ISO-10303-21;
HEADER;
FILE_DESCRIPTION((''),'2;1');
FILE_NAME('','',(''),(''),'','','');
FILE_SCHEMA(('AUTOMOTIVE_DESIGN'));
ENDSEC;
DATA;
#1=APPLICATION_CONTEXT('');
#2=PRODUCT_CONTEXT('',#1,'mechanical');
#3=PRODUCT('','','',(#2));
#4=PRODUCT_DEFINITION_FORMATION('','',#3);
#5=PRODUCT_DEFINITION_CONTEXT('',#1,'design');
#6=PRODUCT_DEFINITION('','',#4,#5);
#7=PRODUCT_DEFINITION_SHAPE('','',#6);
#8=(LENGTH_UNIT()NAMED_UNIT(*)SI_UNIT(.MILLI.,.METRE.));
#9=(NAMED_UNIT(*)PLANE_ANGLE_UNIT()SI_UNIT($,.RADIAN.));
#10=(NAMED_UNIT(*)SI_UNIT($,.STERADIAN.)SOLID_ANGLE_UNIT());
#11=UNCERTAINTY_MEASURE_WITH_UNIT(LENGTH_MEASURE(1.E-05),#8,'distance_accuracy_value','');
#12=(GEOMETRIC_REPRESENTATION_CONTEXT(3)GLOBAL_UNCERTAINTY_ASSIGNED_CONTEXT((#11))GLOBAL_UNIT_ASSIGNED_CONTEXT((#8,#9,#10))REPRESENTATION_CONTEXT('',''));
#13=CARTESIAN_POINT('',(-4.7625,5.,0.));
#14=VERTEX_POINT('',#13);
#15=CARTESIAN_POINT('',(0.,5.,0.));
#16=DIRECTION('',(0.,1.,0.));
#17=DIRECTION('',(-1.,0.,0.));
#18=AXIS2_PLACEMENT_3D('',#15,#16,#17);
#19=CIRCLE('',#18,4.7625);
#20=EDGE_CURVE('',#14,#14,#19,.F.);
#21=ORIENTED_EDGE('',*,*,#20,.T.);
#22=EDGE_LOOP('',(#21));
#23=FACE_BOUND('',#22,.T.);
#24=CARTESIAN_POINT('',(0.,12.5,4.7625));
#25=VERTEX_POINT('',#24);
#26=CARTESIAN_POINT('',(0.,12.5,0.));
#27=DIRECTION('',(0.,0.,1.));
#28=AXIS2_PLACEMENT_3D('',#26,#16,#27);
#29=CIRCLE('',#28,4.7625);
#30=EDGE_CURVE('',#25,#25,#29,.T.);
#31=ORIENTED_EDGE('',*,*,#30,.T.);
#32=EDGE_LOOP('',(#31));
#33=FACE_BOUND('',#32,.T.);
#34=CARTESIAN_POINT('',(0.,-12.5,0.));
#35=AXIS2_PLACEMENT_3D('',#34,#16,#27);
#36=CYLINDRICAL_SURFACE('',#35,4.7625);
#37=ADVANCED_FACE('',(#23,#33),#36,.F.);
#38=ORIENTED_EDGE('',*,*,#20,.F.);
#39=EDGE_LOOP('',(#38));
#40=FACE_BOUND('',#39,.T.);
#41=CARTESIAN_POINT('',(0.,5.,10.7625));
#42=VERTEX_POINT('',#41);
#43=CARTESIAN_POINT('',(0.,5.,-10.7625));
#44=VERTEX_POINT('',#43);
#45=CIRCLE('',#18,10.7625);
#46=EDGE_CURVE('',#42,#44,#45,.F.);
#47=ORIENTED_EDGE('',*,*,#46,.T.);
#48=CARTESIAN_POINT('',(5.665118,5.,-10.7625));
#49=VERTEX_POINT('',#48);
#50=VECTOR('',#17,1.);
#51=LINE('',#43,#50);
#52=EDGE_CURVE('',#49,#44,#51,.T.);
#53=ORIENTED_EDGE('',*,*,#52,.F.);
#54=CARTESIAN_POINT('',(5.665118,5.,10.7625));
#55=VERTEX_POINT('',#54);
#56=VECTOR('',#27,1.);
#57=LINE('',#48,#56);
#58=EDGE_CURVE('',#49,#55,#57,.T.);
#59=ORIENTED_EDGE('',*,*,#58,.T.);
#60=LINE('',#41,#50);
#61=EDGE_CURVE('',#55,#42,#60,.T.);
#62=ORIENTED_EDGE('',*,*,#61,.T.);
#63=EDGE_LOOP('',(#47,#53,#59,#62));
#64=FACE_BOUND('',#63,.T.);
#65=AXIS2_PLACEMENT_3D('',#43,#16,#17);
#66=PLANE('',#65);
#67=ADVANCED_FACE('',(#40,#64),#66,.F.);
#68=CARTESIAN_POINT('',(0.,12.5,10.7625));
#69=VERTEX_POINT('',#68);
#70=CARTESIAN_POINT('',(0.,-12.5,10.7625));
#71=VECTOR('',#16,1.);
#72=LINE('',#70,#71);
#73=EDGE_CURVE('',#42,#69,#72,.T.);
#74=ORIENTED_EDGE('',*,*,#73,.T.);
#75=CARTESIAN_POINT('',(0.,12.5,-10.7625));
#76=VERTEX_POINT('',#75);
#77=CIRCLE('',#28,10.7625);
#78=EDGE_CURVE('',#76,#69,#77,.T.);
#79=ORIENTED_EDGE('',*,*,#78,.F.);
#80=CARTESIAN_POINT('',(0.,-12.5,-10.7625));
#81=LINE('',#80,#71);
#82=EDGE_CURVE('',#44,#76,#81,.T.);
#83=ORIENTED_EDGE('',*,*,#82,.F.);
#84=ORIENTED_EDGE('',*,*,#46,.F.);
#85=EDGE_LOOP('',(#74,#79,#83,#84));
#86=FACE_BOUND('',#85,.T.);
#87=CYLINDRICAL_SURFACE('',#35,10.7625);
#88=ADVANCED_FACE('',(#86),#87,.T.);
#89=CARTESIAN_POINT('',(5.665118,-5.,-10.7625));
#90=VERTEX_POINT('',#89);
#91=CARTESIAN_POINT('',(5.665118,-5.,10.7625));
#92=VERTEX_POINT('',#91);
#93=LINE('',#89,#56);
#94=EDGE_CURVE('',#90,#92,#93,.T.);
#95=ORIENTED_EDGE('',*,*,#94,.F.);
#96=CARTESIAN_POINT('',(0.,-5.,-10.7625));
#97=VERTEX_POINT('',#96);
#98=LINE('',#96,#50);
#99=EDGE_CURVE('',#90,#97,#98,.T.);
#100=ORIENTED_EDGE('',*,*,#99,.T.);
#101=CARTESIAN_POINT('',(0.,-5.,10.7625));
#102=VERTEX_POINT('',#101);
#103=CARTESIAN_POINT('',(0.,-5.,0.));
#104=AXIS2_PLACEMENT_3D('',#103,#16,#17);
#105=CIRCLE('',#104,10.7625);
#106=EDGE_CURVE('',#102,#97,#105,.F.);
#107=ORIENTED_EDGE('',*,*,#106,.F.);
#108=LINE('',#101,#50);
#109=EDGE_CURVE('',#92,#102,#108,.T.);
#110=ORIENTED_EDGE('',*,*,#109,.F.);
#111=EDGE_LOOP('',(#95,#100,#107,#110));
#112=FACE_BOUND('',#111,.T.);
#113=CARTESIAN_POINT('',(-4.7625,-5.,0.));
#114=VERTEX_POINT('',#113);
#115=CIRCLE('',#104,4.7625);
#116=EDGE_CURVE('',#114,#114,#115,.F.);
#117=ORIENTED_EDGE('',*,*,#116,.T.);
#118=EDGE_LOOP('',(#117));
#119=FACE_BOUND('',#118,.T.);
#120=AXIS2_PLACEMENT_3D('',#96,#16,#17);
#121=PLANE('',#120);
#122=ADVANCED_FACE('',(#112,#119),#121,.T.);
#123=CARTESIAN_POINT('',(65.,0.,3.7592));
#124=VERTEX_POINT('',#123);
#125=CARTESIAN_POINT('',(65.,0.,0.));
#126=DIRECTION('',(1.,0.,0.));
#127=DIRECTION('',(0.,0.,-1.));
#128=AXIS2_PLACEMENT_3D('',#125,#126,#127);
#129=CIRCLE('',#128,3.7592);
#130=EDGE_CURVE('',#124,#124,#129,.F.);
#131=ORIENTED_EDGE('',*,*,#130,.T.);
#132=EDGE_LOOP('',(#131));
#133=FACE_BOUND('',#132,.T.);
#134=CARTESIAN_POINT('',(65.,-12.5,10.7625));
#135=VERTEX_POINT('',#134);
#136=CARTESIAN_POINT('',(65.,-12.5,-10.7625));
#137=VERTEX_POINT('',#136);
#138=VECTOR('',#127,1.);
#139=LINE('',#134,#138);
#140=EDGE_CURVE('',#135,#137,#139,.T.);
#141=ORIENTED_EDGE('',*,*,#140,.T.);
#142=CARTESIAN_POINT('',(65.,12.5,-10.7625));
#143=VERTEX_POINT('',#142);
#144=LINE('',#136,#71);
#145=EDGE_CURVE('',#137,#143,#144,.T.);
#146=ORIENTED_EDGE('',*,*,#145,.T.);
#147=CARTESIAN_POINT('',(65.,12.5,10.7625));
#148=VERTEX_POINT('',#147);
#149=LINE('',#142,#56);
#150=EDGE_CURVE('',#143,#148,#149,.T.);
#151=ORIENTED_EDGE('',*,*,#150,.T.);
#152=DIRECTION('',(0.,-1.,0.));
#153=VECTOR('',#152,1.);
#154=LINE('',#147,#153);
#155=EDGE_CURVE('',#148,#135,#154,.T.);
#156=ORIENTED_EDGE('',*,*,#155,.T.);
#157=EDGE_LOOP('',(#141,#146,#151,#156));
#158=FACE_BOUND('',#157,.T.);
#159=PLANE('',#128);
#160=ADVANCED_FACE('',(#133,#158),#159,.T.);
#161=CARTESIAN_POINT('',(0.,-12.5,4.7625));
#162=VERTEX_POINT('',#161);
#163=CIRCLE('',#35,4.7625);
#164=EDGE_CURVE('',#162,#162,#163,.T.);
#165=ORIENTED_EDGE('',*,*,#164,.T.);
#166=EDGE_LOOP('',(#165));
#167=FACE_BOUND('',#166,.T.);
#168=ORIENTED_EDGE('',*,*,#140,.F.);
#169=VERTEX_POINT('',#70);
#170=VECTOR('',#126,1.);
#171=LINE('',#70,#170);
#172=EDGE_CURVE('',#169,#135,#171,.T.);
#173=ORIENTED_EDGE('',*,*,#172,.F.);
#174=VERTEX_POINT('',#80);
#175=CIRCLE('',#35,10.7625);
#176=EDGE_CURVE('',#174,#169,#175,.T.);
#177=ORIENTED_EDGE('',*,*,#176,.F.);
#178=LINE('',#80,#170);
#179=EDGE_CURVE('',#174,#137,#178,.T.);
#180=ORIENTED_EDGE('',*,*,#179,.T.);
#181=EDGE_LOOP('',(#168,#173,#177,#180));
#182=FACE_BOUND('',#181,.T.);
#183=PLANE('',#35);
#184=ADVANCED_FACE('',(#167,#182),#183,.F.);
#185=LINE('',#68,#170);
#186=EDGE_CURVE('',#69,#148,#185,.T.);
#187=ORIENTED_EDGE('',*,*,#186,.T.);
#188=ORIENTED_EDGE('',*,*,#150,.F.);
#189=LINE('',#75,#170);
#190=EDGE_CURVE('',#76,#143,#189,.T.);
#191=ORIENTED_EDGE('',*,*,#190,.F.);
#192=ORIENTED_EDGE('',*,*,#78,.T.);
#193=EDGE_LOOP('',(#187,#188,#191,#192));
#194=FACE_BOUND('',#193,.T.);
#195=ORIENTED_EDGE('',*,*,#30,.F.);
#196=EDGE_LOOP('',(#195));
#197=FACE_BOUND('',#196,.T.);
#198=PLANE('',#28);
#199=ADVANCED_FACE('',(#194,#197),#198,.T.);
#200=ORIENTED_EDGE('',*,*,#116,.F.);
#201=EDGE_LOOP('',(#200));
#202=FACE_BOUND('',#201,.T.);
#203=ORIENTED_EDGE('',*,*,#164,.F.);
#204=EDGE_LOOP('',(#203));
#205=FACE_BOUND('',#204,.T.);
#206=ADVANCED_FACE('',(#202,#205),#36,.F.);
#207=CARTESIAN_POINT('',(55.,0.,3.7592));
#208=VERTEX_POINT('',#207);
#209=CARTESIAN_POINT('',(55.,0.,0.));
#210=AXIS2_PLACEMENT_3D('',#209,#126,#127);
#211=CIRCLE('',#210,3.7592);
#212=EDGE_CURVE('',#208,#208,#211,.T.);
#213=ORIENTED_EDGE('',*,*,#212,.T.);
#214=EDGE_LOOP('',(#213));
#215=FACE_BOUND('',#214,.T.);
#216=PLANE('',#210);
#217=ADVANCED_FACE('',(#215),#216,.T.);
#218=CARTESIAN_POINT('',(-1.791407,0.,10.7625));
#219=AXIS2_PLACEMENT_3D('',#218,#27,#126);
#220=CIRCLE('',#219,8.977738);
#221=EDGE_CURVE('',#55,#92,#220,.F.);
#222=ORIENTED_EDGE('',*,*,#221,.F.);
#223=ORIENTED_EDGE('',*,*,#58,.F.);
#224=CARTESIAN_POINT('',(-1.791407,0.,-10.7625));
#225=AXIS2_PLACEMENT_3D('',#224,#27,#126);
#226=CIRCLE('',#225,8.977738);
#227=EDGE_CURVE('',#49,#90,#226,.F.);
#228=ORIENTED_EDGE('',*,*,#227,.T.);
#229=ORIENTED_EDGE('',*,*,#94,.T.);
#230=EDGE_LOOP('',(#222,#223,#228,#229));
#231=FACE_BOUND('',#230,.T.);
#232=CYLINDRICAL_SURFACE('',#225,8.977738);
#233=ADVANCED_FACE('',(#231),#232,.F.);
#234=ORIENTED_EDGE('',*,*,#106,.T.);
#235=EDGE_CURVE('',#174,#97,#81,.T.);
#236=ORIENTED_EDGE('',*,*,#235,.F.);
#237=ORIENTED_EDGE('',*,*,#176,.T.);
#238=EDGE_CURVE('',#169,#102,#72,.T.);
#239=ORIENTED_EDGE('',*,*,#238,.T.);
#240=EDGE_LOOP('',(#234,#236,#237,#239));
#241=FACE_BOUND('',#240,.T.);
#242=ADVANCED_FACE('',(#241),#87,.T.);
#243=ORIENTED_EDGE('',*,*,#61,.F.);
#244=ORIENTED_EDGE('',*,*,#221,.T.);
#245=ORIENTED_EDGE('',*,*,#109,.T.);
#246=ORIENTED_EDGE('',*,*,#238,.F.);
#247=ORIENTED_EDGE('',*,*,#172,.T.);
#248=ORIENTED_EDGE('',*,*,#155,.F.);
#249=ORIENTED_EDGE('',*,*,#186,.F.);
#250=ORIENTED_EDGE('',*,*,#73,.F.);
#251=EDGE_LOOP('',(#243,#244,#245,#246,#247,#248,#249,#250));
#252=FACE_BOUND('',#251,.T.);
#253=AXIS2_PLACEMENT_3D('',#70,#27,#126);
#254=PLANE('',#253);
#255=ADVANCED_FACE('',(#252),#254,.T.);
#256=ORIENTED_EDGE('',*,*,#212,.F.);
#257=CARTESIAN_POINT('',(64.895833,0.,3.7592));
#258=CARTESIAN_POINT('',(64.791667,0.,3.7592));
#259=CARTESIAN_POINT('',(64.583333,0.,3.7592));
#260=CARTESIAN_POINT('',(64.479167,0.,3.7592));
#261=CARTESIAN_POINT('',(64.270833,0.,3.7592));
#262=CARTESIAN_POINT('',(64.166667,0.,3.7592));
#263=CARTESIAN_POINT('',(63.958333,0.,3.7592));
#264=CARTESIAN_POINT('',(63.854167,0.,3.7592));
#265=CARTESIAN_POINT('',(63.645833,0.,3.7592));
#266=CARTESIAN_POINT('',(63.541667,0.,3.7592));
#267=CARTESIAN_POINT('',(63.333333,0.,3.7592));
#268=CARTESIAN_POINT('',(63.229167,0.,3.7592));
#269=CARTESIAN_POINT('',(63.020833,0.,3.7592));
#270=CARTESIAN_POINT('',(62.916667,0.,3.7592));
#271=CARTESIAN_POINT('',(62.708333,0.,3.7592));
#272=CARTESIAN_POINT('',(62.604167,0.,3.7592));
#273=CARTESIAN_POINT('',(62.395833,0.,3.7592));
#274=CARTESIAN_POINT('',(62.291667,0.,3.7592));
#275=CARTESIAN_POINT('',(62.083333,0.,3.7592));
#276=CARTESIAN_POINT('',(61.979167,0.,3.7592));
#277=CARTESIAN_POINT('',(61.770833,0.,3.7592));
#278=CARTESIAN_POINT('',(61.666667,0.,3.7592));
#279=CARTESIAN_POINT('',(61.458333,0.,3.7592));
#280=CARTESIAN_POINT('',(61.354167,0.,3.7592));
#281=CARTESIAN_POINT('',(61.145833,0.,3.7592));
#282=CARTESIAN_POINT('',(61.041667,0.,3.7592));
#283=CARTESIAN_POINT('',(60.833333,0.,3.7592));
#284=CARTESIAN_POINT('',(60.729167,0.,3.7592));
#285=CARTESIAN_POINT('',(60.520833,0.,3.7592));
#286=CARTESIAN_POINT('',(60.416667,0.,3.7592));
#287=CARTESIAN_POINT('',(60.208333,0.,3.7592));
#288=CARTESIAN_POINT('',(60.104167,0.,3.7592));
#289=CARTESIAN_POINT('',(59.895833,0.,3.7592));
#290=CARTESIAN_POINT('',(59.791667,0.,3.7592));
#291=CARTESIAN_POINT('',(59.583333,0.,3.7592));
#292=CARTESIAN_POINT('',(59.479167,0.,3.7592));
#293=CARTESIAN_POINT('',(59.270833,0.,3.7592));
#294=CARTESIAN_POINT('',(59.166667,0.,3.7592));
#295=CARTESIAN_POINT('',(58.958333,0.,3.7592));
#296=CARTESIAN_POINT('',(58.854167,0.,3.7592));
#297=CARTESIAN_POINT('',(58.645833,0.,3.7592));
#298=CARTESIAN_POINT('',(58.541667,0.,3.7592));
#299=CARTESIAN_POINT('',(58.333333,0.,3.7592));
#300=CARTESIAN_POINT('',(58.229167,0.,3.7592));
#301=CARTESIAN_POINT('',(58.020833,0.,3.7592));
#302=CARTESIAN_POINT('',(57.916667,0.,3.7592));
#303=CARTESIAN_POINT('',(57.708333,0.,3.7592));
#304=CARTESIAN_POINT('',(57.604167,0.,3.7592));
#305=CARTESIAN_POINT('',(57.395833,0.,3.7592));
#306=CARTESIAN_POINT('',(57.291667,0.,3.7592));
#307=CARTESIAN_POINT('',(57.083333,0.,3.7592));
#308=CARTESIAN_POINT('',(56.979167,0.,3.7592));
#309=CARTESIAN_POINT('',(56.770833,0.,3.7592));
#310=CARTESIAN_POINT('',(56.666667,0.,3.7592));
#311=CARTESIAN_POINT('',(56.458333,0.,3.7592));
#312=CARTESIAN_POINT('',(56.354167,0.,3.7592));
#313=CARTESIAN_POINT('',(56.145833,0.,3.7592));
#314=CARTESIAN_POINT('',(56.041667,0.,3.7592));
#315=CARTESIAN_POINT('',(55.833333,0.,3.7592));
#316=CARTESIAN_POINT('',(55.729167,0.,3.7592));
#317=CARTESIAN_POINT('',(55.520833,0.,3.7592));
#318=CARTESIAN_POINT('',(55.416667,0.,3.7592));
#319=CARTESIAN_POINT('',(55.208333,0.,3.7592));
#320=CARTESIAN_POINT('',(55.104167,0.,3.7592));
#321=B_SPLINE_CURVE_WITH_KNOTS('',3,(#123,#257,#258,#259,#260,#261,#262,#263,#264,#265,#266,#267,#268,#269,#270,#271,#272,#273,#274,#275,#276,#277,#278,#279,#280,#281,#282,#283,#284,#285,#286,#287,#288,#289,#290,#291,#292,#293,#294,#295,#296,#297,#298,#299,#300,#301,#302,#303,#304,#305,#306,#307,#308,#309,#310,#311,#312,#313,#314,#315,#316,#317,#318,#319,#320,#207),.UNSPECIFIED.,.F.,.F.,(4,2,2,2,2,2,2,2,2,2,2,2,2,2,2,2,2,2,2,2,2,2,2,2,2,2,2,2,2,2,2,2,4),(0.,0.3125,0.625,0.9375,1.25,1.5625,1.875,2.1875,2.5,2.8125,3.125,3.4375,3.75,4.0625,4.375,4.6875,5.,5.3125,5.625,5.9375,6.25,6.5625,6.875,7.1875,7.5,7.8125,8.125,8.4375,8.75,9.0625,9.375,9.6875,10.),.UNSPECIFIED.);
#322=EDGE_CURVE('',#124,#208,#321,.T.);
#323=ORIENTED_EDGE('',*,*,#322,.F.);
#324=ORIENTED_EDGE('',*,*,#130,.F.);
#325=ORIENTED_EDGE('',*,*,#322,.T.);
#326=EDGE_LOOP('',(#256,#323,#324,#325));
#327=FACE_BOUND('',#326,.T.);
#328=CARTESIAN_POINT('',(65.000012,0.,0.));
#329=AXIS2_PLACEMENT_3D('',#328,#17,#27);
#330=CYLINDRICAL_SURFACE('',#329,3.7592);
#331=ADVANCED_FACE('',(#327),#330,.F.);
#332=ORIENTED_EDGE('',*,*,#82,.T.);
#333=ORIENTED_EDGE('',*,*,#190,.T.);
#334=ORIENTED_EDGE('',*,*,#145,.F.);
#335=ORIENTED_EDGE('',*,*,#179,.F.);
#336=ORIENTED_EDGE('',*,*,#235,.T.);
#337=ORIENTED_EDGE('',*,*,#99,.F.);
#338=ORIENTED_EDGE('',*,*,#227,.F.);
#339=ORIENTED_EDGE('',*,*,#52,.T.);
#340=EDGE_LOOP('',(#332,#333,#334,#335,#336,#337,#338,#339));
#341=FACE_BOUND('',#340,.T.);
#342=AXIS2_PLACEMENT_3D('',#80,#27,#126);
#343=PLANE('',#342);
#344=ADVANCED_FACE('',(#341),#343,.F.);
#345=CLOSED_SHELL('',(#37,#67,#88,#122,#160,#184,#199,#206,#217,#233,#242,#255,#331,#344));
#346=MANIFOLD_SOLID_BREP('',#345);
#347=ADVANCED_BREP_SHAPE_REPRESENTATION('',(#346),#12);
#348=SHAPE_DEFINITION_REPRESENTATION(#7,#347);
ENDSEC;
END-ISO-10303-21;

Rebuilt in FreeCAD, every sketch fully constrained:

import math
import FreeCAD as App
import Part
import Sketcher

V = App.Vector


def add_polygon(sketch, points):
    """Adds a closed chain of lines whose ends are joined by coincident constraints."""
    first, n = sketch.GeometryCount, len(points)
    for a, b in zip(points, points[1:] + points[:1]):
        sketch.addGeometry(Part.LineSegment(App.Vector(*a, 0), App.Vector(*b, 0)), False)
    for i in range(n):
        sketch.addConstraint(Sketcher.Constraint("Coincident", first + i, 2, first + (i + 1) % n, 1))

doc = App.newDocument("Part")
body = doc.addObject("PartDesign::Body", "Body")

# Sketch on XZ plane
sketch1 = body.newObject("Sketcher::SketchObject", "Sketch")
sketch1.AttachmentSupport = (doc.getObject("XZ_Plane"), [""])
sketch1.MapMode = "FlatFace"
add_polygon(sketch1, [(-15, -15), (-15, 15), (15, 15), (15, -15)])  # lines 0-3
sketch1.addConstraint([
    Sketcher.Constraint("Vertical", 0),
    Sketcher.Constraint("Horizontal", 1),
    Sketcher.Constraint("Vertical", 2),
    Sketcher.Constraint("Horizontal", 3),
    Sketcher.Constraint("Symmetric", 0, 2, 2, 2, -1, 1),
    Sketcher.Constraint("Equal", 3, 0),
    Sketcher.Constraint("DistanceX", 1, 1, 1, 2, 30.0),
])
pad1 = body.newObject("PartDesign::Pad", "Pad")
pad1.Profile = sketch1
pad1.Length = 25
pad1.Midplane = True

# Sketch on XZ plane
sketch2 = body.newObject("Sketcher::SketchObject", "Sketch001")
sketch2.AttachmentSupport = (doc.getObject("XZ_Plane"), [""])
sketch2.MapMode = "FlatFace"
sketch2.addGeometry([
    Part.Circle(V(0, 0, 0), V(0, 0, 1), 4.8),  # 0
    Part.ArcOfCircle(Part.Circle(V(0, 0, 0), V(0, 0, 1), 10.8), math.radians(90), math.radians(270)),  # 1
    Part.LineSegment(V(0, -10.8, 0), V(15, -10.8, 0)),  # 2
    Part.LineSegment(V(15, -10.8, 0), V(15, -15, 0)),  # 3
    Part.LineSegment(V(15, -15, 0), V(-15, -15, 0)),  # 4
    Part.LineSegment(V(-15, -15, 0), V(-15, 15, 0)),  # 5
    Part.LineSegment(V(-15, 15, 0), V(15, 15, 0)),  # 6
    Part.LineSegment(V(15, 15, 0), V(15, 10.8, 0)),  # 7
    Part.LineSegment(V(15, 10.8, 0), V(0, 10.8, 0)),  # 8
], False)
sketch2.addConstraint([
    Sketcher.Constraint("Tangent", 1, 2, 2, 1),
    Sketcher.Constraint("Coincident", 2, 2, 3, 1),
    Sketcher.Constraint("Coincident", 3, 2, 4, 1),
    Sketcher.Constraint("Coincident", 4, 2, 5, 1),
    Sketcher.Constraint("Coincident", 5, 2, 6, 1),
    Sketcher.Constraint("Coincident", 6, 2, 7, 1),
    Sketcher.Constraint("Coincident", 7, 2, 8, 1),
    Sketcher.Constraint("Tangent", 8, 2, 1, 1),
    Sketcher.Constraint("Horizontal", 2),
    Sketcher.Constraint("Vertical", 3),
    Sketcher.Constraint("Horizontal", 4),
    Sketcher.Constraint("Vertical", 5),
    Sketcher.Constraint("Horizontal", 6),
    Sketcher.Constraint("Vertical", 7),
    Sketcher.Constraint("Horizontal", 8),
    Sketcher.Constraint("Coincident", 0, 3, -1, 1),
    Sketcher.Constraint("Coincident", 1, 3, -1, 1),
    Sketcher.Constraint("Symmetric", 3, 2, 5, 2, -1, 1),
    Sketcher.Constraint("Vertical", 3, 2, 6, 2),
    Sketcher.Constraint("Equal", 6, 5),
    Sketcher.Constraint("DistanceX", 2, 1, 2, 2, 15.0),
    Sketcher.Constraint("Diameter", 0, 9.525),
    Sketcher.Constraint("Radius", 1, 10.7625),
])
pocket1 = body.newObject("PartDesign::Pocket", "Pocket")
pocket1.Profile = sketch2
pocket1.Type = "ThroughAll"
pocket1.Midplane = True

# Sketch on XY plane
sketch3 = body.newObject("Sketcher::SketchObject", "Sketch002")
sketch3.AttachmentSupport = (doc.getObject("XY_Plane"), [""])
sketch3.MapMode = "FlatFace"
sketch3.AttachmentOffset = App.Placement(V(0, 0, 10.7625), App.Rotation())
sketch3.addGeometry([
    Part.ArcOfCircle(Part.Circle(V(-2, 0, 0), V(0, 0, 1), 9), math.radians(-34), math.radians(34)),
    Part.LineSegment(V(6, 5, 0), V(-11, 5, 0)),
    Part.LineSegment(V(-11, 5, 0), V(-11, -5, 0)),
    Part.LineSegment(V(-11, -5, 0), V(6, -5, 0)),
], False)
sketch3.addConstraint([
    Sketcher.Constraint("Coincident", 0, 2, 1, 1),
    Sketcher.Constraint("Coincident", 1, 2, 2, 1),
    Sketcher.Constraint("Coincident", 2, 2, 3, 1),
    Sketcher.Constraint("Coincident", 3, 2, 0, 1),
    Sketcher.Constraint("Horizontal", 1),
    Sketcher.Constraint("Vertical", 2),
    Sketcher.Constraint("Horizontal", 3),
    Sketcher.Constraint("Symmetric", 0, 2, 3, 2, -1),
    Sketcher.Constraint("DistanceY", 2, 2, 2, 1, 10.0),
    Sketcher.Constraint("Radius", 0, 8.977738),
    Sketcher.Constraint("DistanceX", 1, 2, 1, 1, 16.427618),
    Sketcher.Constraint("DistanceX", 1, 2, -1, 1, 10.7625),
])
pocket2 = body.newObject("PartDesign::Pocket", "Pocket001")
pocket2.Profile = sketch3
pocket2.Type = "ThroughAll"
pocket2.Midplane = True

# Sketch on YZ plane
sketch4 = body.newObject("Sketcher::SketchObject", "Sketch003")
sketch4.AttachmentSupport = (doc.getObject("YZ_Plane"), [""])
sketch4.MapMode = "FlatFace"
sketch4.AttachmentOffset = App.Placement(V(0, 0, 15), App.Rotation())
add_polygon(sketch4, [(12, 11), (-12, 11), (-12, -11), (12, -11)])  # lines 0-3
sketch4.addConstraint([
    Sketcher.Constraint("Horizontal", 0),
    Sketcher.Constraint("Vertical", 1),
    Sketcher.Constraint("Horizontal", 2),
    Sketcher.Constraint("Vertical", 3),
    Sketcher.Constraint("Symmetric", 0, 2, 2, 2, -1, 1),
    Sketcher.Constraint("DistanceX", 0, 2, 0, 1, 25.0),
    Sketcher.Constraint("DistanceY", 1, 2, 1, 1, 21.525),
])
pad2 = body.newObject("PartDesign::Pad", "Pad001")
pad2.Profile = sketch4
pad2.Length = 50

# Sketch on YZ plane
sketch5 = body.newObject("Sketcher::SketchObject", "Sketch004")
sketch5.AttachmentSupport = (doc.getObject("YZ_Plane"), [""])
sketch5.MapMode = "FlatFace"
sketch5.AttachmentOffset = App.Placement(V(0, 0, 65), App.Rotation())
sketch5.addGeometry(Part.Circle(V(0, 0, 0), V(0, 0, 1), 3.8), False)
sketch5.addConstraint([
    Sketcher.Constraint("Coincident", 0, 3, -1, 1),
    Sketcher.Constraint("Diameter", 0, 7.5184),
])
pocket3 = body.newObject("PartDesign::Pocket", "Pocket002")
pocket3.Profile = sketch5
pocket3.Type = "TwoLengths"
pocket3.Length = 78.537332
pocket3.Length2 = 10
pocket3.Reversed = True

doc.recompute()
